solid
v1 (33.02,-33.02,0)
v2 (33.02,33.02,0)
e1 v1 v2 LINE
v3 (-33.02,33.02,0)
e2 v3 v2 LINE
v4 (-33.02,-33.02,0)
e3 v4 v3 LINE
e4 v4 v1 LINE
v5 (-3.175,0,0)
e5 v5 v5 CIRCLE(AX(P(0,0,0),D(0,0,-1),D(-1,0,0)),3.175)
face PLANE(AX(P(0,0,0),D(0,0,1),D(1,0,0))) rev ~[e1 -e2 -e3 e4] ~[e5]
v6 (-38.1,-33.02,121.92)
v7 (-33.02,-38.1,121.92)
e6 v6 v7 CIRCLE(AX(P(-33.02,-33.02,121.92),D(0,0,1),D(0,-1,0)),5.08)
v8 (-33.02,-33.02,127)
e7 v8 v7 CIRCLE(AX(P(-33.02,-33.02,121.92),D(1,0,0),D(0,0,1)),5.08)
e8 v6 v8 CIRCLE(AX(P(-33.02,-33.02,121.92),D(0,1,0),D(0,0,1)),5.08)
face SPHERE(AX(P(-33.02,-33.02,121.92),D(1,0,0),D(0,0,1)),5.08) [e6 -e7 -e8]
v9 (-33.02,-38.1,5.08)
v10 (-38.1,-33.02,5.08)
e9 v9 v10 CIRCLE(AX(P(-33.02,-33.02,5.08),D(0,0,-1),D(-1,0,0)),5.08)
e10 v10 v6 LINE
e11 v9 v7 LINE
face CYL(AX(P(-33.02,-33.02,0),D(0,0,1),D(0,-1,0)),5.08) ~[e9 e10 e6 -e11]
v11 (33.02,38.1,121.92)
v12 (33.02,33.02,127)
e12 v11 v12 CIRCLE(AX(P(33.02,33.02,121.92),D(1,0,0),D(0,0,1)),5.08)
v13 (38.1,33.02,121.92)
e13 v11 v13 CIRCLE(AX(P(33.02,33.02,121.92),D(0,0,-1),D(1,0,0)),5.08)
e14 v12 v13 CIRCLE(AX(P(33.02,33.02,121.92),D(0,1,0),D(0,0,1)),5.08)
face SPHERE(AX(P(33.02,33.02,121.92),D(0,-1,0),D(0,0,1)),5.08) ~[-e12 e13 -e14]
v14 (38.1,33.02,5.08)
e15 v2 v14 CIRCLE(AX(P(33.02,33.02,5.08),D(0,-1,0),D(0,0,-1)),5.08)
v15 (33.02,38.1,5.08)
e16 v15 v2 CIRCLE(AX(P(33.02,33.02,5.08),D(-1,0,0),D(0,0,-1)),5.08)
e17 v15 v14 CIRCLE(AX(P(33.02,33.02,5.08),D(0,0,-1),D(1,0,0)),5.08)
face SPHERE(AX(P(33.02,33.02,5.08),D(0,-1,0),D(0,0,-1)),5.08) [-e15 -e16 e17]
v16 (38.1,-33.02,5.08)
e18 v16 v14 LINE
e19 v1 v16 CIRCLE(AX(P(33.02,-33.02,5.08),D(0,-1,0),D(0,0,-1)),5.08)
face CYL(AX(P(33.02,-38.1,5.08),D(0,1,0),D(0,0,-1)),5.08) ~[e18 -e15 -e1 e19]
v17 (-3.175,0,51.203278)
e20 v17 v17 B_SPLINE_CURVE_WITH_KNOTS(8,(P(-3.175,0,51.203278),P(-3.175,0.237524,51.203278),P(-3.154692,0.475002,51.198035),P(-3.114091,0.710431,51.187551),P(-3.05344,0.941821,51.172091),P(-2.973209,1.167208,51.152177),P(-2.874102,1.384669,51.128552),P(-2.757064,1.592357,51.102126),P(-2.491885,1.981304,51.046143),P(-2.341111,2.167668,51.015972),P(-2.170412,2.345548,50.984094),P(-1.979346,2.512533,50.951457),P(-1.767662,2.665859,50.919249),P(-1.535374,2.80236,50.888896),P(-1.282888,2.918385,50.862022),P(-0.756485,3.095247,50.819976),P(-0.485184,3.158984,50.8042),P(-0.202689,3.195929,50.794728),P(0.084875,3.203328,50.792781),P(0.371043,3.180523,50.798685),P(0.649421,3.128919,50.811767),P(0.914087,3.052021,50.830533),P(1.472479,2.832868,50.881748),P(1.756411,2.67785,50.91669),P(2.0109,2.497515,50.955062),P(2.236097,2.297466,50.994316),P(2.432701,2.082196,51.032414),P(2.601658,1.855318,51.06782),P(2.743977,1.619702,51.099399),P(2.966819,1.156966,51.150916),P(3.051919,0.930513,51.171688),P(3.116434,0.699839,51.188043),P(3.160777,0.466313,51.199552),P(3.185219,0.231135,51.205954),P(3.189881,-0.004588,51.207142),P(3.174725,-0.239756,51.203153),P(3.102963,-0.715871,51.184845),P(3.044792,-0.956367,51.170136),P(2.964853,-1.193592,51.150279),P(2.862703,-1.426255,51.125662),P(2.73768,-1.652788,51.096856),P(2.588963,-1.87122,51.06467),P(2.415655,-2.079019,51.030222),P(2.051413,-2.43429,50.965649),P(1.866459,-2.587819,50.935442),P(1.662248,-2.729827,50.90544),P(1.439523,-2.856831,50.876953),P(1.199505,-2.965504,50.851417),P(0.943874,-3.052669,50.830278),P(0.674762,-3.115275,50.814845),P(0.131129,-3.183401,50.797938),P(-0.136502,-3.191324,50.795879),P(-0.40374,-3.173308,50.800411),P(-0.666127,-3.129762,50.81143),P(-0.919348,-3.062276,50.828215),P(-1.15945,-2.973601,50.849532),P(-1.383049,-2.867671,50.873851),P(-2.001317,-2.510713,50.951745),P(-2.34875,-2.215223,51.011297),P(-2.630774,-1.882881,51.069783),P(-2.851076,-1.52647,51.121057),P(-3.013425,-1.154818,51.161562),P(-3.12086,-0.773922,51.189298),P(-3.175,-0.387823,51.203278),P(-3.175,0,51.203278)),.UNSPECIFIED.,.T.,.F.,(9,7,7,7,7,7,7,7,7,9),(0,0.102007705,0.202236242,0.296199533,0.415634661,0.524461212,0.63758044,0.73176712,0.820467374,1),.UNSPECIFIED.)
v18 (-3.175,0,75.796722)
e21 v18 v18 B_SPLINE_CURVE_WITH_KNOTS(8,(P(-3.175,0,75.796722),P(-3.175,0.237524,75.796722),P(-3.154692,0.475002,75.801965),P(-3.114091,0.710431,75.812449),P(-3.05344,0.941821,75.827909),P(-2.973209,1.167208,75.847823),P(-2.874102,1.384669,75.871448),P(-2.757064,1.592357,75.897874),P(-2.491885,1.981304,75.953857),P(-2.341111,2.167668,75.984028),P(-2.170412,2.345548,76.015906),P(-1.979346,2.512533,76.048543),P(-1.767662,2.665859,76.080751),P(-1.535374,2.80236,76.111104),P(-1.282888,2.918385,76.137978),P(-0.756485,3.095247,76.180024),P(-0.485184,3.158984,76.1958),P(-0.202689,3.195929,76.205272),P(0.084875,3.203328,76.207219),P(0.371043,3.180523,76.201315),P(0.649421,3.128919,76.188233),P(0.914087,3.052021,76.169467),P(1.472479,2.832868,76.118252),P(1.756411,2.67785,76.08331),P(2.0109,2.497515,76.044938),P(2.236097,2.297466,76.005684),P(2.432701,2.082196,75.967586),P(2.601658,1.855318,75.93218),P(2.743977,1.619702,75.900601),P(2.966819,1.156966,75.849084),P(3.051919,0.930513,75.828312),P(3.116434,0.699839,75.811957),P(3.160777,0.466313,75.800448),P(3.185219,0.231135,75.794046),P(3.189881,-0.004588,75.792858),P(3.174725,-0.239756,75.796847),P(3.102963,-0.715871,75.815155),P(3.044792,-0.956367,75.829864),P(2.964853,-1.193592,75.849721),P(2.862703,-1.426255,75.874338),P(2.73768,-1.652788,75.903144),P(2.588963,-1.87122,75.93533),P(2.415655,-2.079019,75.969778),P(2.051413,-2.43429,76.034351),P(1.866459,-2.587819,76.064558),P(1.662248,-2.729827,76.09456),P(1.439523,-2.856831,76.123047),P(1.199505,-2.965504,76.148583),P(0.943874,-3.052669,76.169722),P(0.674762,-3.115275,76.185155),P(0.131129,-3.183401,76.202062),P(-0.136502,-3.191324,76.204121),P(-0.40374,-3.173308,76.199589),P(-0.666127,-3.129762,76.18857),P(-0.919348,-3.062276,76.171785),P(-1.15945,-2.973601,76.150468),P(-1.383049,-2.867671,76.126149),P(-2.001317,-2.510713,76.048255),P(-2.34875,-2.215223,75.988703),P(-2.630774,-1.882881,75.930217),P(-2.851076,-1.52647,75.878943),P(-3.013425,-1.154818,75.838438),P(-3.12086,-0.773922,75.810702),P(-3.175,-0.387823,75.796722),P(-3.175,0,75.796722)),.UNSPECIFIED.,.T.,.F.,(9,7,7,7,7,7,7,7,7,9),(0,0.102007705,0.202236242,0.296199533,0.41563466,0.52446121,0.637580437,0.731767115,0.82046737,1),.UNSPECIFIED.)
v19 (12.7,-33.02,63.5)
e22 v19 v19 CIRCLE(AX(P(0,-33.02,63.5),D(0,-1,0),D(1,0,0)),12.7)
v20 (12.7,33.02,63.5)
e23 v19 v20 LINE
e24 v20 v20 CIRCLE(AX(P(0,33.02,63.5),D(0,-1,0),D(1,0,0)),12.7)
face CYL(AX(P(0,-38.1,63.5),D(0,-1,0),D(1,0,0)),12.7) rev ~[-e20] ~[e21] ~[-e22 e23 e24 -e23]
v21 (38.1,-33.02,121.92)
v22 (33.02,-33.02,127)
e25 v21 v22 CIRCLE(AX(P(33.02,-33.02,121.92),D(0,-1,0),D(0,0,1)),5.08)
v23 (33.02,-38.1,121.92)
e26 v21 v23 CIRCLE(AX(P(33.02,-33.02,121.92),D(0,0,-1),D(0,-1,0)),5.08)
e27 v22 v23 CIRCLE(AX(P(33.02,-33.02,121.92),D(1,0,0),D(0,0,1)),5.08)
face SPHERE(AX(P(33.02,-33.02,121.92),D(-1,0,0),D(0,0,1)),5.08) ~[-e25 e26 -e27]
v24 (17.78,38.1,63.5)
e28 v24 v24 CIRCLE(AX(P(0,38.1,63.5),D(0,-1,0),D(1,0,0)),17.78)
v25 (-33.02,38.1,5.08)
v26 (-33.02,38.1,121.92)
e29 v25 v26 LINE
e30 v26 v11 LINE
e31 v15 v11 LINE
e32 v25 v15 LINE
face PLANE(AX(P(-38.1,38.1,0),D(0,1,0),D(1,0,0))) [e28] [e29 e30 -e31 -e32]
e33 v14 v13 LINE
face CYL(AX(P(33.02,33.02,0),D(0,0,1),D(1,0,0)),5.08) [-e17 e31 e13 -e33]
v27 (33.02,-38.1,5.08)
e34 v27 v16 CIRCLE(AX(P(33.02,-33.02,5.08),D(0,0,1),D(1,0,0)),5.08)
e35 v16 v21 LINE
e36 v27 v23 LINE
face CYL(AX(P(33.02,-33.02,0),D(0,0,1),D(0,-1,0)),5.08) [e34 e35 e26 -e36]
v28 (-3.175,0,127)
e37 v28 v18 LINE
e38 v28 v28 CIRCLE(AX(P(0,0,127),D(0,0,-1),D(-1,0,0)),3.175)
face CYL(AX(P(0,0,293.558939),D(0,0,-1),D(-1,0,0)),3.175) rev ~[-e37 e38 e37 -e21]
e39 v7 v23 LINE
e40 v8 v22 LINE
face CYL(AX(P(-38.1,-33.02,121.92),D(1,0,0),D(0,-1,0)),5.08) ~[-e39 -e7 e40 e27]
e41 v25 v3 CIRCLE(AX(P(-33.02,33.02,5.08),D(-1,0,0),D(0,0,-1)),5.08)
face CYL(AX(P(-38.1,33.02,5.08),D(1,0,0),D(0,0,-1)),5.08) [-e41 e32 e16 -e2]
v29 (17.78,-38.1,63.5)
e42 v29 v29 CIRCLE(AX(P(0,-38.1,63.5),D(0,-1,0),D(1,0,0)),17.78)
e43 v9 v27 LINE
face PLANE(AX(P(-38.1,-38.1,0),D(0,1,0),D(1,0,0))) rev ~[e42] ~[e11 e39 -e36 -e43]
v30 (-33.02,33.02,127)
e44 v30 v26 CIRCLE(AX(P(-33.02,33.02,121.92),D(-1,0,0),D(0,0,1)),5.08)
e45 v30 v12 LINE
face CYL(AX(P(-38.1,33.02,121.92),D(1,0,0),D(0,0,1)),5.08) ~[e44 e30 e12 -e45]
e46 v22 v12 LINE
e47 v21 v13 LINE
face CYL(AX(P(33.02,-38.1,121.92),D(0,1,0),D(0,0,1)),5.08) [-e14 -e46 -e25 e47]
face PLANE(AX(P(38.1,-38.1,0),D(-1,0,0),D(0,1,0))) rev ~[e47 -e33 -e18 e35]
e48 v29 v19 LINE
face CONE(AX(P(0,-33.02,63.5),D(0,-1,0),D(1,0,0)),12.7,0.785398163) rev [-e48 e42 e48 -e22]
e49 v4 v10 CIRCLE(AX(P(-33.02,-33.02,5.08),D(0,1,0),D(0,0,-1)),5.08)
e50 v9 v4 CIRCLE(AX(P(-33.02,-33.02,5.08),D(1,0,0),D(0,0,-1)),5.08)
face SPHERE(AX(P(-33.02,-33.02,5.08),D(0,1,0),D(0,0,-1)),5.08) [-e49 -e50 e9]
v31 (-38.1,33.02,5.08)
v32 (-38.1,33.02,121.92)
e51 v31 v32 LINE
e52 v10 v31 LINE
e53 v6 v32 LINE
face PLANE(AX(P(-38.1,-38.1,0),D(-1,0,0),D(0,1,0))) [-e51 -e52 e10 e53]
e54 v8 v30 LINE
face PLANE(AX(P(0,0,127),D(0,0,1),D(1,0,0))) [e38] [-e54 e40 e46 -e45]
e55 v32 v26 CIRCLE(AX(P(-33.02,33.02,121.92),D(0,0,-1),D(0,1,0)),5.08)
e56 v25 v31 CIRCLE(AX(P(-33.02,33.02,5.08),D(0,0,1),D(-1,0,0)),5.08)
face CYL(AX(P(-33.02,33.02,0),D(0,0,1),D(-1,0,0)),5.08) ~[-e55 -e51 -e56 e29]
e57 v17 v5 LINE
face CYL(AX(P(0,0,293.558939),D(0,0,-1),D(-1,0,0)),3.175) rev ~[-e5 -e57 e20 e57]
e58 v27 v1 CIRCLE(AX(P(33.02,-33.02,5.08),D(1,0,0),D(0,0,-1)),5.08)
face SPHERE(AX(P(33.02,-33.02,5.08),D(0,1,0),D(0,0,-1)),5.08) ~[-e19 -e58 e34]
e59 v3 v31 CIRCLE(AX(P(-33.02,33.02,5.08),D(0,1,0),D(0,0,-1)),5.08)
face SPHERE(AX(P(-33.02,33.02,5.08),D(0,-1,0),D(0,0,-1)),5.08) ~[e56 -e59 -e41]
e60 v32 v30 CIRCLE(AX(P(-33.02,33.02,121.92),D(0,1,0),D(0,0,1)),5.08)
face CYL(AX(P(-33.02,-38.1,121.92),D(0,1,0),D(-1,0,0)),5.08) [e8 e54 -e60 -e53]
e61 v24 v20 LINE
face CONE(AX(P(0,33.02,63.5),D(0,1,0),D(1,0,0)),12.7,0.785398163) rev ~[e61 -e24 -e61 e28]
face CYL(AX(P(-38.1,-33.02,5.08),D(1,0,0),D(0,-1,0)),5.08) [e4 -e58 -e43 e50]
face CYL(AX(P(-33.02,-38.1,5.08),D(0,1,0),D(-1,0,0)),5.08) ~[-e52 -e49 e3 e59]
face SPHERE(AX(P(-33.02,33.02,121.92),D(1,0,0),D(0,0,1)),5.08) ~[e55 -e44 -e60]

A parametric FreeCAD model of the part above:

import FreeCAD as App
import Part
import Sketcher
Q = App.Units.Quantity


def edges_at(feature, points):
    """Names of the edges that pass closest to the given points."""
    edges = feature.Shape.Edges
    near = lambda p: min(range(len(edges)), key=lambda i: edges[i].distToShape(Part.Vertex(*p))[0])
    return sorted({f"Edge{near(p) + 1}" for p in points})


def add_polygon(sketch, points):
    """Adds a closed chain of lines whose ends are joined by coincident constraints."""
    first, n = sketch.GeometryCount, len(points)
    for a, b in zip(points, points[1:] + points[:1]):
        sketch.addGeometry(Part.LineSegment(App.Vector(*a, 0), App.Vector(*b, 0)), False)
    for i in range(n):
        sketch.addConstraint(Sketcher.Constraint("Coincident", first + i, 2, first + (i + 1) % n, 1))

doc = App.newDocument("Part")
body = doc.addObject("PartDesign::Body", "Body")

# Sketch on XY plane
sketch1 = body.newObject("Sketcher::SketchObject", "Sketch")
sketch1.AttachmentSupport = (doc.getObject("XY_Plane"), [""])
sketch1.MapMode = "FlatFace"
add_polygon(sketch1, [(-38, 38), (-38, -38), (38, -38), (38, 38)])  # lines 0-3
sketch1.addConstraint([
    Sketcher.Constraint("Vertical", 0),
    Sketcher.Constraint("Horizontal", 1),
    Sketcher.Constraint("Vertical", 2),
    Sketcher.Constraint("Horizontal", 3),
    Sketcher.Constraint("Symmetric", 0, 2, 2, 2, -1, 1),
    Sketcher.Constraint("Equal", 3, 0),
    Sketcher.Constraint("DistanceX", 1, 1, 1, 2, Q("3 in")),
])
pad1 = body.newObject("PartDesign::Pad", "Pad")
pad1.Profile = sketch1
pad1.Length = Q("5 in")

# Sketch on XZ plane
sketch2 = body.newObject("Sketcher::SketchObject", "Sketch001")
sketch2.AttachmentSupport = (doc.getObject("XZ_Plane"), [""])
sketch2.MapMode = "FlatFace"
sketch2.AttachmentOffset = App.Placement(App.Vector(0, 0, 1.5 * 25.4), App.Rotation())
sketch2.addGeometry(Part.Circle(App.Vector(0, 64, 0), App.Vector(0, 0, 1), 13), False)
sketch2.addConstraint([
    Sketcher.Constraint("PointOnObject", 0, 3, -2),
    Sketcher.Constraint("Diameter", 0, Q("1 in")),
    Sketcher.Constraint("DistanceY", -1, 1, 0, 3, Q("2.5 in")),
])
pocket1 = body.newObject("PartDesign::Pocket", "Pocket")
pocket1.Profile = sketch2
pocket1.Type = "ThroughAll"
doc.recompute()

chamfer = body.newObject("PartDesign::Chamfer", "Chamfer")
chamfer.Base = (pocket1, edges_at(pocket1, [(-12.7, -38.1, 63.5), (-12.7, 38.1, 63.5)]))
chamfer.Size = Q("0.2 in")
doc.recompute()

fillet = body.newObject("PartDesign::Fillet", "Fillet")
fillet.Base = (chamfer, edges_at(chamfer, [
    (0, -38.1, 127),
    (38.1, 0, 127),
    (0, 38.1, 127),
    (-38.1, 0, 127),
    (-38.1, 0, 0),
    (38.1, 0, 0),
    (0, 38.1, 0),
    (0, -38.1, 0),
    (38.1, -38.1, 63.5),
    (38.1, 38.1, 63.5),
    (-38.1, 38.1, 63.5),
    (-38.1, -38.1, 63.5),
]))
fillet.Radius = Q("0.2 in")

# Sketch on XY plane
sketch3 = body.newObject("Sketcher::SketchObject", "Sketch002")
sketch3.AttachmentSupport = (doc.getObject("XY_Plane"), [""])
sketch3.MapMode = "FlatFace"
sketch3.AttachmentOffset = App.Placement(App.Vector(0, 0, 5 * 25.4), App.Rotation())
sketch3.addGeometry(Part.Circle(App.Vector(0, 0, 0), App.Vector(0, 0, 1), 3.2), False)
sketch3.addConstraint([
    Sketcher.Constraint("Coincident", 0, 3, -1, 1),
    Sketcher.Constraint("Diameter", 0, Q("0.25 in")),
])
doc.recompute()
hole = body.newObject("PartDesign::Hole", "Hole")
hole.Profile = sketch3
hole.ThreadType = "None"
hole.Diameter = Q("0.25 in")
hole.DepthType = "ThroughAll"

doc.recompute()
